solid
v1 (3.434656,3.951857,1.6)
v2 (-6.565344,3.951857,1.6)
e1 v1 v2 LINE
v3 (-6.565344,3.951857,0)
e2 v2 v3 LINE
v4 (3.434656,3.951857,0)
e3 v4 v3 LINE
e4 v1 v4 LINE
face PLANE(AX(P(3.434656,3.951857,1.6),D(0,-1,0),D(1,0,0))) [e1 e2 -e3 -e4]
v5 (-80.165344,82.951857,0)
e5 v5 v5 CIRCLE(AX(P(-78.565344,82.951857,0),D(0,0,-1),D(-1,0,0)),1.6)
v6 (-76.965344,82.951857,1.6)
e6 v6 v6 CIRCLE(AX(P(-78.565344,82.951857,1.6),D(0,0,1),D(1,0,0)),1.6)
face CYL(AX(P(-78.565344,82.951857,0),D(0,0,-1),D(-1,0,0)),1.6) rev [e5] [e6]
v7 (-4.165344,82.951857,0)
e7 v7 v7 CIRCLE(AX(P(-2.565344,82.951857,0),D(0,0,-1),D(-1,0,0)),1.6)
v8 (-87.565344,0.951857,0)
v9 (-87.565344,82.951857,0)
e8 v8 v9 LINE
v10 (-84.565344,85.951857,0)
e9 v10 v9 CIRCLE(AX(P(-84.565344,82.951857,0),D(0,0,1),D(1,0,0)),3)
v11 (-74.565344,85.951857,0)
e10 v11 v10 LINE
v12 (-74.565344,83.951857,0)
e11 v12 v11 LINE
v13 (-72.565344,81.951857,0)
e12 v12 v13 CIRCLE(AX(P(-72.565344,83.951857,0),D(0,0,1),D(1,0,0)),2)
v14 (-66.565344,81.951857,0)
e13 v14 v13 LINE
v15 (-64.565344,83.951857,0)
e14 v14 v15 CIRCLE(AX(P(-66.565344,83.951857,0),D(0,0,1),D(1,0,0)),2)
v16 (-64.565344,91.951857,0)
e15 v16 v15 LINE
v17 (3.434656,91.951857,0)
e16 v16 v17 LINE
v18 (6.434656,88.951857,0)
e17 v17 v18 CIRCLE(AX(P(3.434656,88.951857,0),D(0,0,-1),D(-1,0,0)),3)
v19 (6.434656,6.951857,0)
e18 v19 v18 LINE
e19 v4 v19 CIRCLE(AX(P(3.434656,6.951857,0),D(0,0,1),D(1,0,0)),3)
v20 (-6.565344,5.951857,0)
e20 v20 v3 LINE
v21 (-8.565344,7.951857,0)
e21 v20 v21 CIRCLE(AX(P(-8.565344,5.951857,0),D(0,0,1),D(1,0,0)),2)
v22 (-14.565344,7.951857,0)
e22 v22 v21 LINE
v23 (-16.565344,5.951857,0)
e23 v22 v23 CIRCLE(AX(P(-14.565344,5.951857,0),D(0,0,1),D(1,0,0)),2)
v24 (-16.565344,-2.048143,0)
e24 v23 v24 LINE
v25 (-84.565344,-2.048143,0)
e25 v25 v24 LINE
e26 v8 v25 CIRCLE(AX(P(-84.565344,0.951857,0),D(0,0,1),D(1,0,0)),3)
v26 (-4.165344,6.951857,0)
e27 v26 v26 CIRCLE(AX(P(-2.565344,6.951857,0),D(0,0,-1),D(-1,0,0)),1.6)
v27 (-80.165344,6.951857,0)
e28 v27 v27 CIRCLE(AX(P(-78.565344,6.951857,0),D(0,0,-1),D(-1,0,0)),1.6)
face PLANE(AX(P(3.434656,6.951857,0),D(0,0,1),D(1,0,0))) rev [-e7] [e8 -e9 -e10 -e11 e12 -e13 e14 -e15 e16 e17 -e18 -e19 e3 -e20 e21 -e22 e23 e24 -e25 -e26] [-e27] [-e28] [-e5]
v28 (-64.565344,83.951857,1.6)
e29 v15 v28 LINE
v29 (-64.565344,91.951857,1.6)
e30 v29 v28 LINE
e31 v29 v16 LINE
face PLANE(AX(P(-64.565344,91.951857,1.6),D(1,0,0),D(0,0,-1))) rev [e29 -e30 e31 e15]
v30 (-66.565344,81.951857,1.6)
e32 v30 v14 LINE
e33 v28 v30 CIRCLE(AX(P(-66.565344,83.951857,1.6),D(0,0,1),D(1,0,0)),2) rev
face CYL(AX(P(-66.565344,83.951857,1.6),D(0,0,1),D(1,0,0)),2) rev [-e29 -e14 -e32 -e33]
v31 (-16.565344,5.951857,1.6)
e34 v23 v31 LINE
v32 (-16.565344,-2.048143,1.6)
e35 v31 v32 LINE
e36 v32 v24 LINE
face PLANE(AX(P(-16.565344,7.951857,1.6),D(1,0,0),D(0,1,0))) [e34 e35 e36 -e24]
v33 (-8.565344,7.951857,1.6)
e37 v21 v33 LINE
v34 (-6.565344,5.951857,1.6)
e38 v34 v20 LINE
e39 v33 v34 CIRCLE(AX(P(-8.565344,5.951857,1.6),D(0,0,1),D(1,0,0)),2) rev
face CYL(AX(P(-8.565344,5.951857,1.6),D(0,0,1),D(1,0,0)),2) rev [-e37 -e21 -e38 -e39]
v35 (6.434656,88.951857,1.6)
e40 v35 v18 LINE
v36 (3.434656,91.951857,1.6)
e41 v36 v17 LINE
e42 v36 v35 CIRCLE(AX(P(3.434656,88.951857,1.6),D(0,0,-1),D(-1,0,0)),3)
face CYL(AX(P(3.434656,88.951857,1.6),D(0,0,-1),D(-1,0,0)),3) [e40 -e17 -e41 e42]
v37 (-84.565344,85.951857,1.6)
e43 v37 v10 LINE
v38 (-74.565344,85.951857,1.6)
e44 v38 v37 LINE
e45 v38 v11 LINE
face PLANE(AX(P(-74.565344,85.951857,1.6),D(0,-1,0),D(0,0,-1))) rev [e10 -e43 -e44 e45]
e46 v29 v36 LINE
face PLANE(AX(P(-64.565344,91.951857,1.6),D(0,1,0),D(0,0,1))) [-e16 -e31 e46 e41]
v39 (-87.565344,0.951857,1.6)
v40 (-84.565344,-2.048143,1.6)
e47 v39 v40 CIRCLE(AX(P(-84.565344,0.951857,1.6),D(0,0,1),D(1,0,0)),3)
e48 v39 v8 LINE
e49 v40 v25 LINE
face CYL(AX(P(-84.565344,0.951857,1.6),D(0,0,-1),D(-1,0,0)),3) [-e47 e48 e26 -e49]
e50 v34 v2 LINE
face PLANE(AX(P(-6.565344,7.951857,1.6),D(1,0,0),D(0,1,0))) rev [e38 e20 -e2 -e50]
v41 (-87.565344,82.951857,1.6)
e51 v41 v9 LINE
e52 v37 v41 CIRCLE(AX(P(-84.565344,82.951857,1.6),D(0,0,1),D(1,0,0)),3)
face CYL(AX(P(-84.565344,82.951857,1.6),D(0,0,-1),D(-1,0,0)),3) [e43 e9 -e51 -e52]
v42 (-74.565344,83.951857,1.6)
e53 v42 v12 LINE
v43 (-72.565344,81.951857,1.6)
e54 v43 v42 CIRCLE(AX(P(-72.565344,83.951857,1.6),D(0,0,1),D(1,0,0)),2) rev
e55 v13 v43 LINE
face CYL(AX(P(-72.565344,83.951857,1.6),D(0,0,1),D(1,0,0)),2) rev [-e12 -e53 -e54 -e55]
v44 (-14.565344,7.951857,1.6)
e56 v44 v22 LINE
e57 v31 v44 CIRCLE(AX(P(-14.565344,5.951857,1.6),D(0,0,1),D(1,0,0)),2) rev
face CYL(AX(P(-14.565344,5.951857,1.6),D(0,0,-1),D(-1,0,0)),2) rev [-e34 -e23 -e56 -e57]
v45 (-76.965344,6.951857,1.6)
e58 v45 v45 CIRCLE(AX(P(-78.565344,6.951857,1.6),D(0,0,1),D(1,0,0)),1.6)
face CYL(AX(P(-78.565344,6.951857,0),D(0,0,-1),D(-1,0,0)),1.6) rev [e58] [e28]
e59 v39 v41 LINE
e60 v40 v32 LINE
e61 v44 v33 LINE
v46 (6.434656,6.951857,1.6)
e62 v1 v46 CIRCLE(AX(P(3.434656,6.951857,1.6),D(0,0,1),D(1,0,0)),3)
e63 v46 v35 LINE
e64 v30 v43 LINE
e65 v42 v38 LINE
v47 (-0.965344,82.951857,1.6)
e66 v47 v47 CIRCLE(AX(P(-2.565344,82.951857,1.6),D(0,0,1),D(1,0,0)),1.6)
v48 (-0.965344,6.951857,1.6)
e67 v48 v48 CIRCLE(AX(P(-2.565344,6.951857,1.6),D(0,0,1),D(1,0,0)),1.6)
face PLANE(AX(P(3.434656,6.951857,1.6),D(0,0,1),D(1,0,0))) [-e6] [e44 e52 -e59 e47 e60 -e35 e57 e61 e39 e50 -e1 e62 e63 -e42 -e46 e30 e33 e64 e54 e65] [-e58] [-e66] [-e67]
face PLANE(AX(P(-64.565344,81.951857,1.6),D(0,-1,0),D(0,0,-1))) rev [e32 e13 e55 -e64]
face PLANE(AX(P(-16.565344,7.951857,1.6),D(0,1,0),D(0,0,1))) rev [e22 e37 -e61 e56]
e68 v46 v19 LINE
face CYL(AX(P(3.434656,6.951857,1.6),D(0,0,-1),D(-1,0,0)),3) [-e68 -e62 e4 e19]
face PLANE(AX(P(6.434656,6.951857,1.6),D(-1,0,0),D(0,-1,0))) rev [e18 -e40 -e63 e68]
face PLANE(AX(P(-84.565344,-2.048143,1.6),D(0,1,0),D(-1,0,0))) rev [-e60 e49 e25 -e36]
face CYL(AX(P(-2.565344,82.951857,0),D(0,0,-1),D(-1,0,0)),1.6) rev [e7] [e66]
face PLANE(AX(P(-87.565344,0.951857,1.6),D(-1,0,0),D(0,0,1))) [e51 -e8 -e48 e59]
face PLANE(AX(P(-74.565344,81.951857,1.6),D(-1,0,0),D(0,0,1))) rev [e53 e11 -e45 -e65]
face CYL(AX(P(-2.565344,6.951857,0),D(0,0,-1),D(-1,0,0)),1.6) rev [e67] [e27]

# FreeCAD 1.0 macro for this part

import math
import FreeCAD as App
import Part
import Sketcher

V = App.Vector
Q = App.Units.Quantity


def edges_at(feature, points):
    """Names of the edges that pass closest to the given points."""
    edges = feature.Shape.Edges
    near = lambda p: min(range(len(edges)), key=lambda i: edges[i].distToShape(Part.Vertex(*p))[0])
    return sorted({f"Edge{near(p) + 1}" for p in points})

doc = App.newDocument("Part")
body = doc.addObject("PartDesign::Body", "Body")

sketch1 = doc.addObject("Sketcher::SketchObject", "Sketch")
body.addObject(sketch1)
sketch1.AttachmentSupport = (doc.XY_Plane, [""])
sketch1.MapMode = "FlatFace"
sketch1.addGeometry([
    Part.LineSegment(V(-84.565344, -2.048143, 0), V(-16.565344, -2.048143, 0)),
    Part.LineSegment(V(-16.565344, -2.048143, 0), V(-16.565344, 7.951857, 0)),
    Part.LineSegment(V(-16.565344, 7.951857, 0), V(-6.565344, 7.951857, 0)),
    Part.LineSegment(V(-6.565344, 7.951857, 0), V(-6.565344, 3.951857, 0)),
    Part.LineSegment(V(-6.565344, 3.951857, 0), V(3.434656, 3.951857, 0)),
    Part.ArcOfCircle(Part.Circle(V(3.434656, 6.951857, 0), V(0, 0, 1), 3), math.radians(-90), math.radians(0)),
    Part.LineSegment(V(6.434656, 6.951857, 0), V(6.434656, 88.951857, 0)),
    Part.ArcOfCircle(Part.Circle(V(3.434656, 88.951857, 0), V(0, 0, 1), 3), math.radians(0), math.radians(90)),
    Part.LineSegment(V(3.434656, 91.951857, 0), V(-64.565344, 91.951857, 0)),
    Part.LineSegment(V(-64.565344, 91.951857, 0), V(-64.565344, 81.951857, 0)),
    Part.LineSegment(V(-64.565344, 81.951857, 0), V(-74.565344, 81.951857, 0)),
    Part.LineSegment(V(-74.565344, 81.951857, 0), V(-74.565344, 85.951857, 0)),
    Part.LineSegment(V(-74.565344, 85.951857, 0), V(-84.565344, 85.951857, 0)),
    Part.ArcOfCircle(Part.Circle(V(-84.565344, 82.951857, 0), V(0, 0, 1), 3), math.radians(90), math.radians(180)),
    Part.LineSegment(V(-87.565344, 82.951857, 0), V(-87.565344, 0.951857, 0)),
    Part.ArcOfCircle(Part.Circle(V(-84.565344, 0.951857, 0), V(0, 0, 1), 3), math.radians(180), math.radians(270)),
], False)
sketch1.addConstraint([
    Sketcher.Constraint("Coincident", 0, 2, 1, 1),
    Sketcher.Constraint("Coincident", 1, 2, 2, 1),
    Sketcher.Constraint("Coincident", 2, 2, 3, 1),
    Sketcher.Constraint("Coincident", 3, 2, 4, 1),
    Sketcher.Constraint("Tangent", 4, 2, 5, 1),
    Sketcher.Constraint("Tangent", 5, 2, 6, 1),
    Sketcher.Constraint("Tangent", 6, 2, 7, 1),
    Sketcher.Constraint("Tangent", 7, 2, 8, 1),
    Sketcher.Constraint("Coincident", 8, 2, 9, 1),
    Sketcher.Constraint("Coincident", 9, 2, 10, 1),
    Sketcher.Constraint("Coincident", 10, 2, 11, 1),
    Sketcher.Constraint("Coincident", 11, 2, 12, 1),
    Sketcher.Constraint("Tangent", 12, 2, 13, 1),
    Sketcher.Constraint("Tangent", 13, 2, 14, 1),
    Sketcher.Constraint("Tangent", 14, 2, 15, 1),
    Sketcher.Constraint("Tangent", 15, 2, 0, 1),
    Sketcher.Constraint("Horizontal", 0),
    Sketcher.Constraint("Vertical", 1),
    Sketcher.Constraint("Horizontal", 2),
    Sketcher.Constraint("Vertical", 3),
    Sketcher.Constraint("Horizontal", 4),
    Sketcher.Constraint("Vertical", 6),
    Sketcher.Constraint("Horizontal", 8),
    Sketcher.Constraint("Vertical", 9),
    Sketcher.Constraint("Horizontal", 10),
    Sketcher.Constraint("Vertical", 11),
    Sketcher.Constraint("Horizontal", 12),
    Sketcher.Constraint("Vertical", 14),
    Sketcher.Constraint("Equal", 5, 7),
    Sketcher.Constraint("Equal", 7, 13),
    Sketcher.Constraint("Equal", 13, 15),
    Sketcher.Constraint("Equal", 2, 4),
    Sketcher.Constraint("Equal", 0, 8),
    Sketcher.Constraint("Equal", 4, 10),
    Sketcher.Constraint("Equal", 12, 1),
    Sketcher.Constraint("Equal", 1, 9),
    Sketcher.Constraint("Equal", 3, 11),
    Sketcher.Constraint("Radius", 5, Q("3 mm")),
    Sketcher.Constraint("DistanceX", 0, 1, 0, 2, Q("68 mm")),
    Sketcher.Constraint("DistanceX", 2, 1, 2, 2, Q("10 mm")),
    Sketcher.Constraint("DistanceY", 3, 2, 3, 1, Q("4 mm")),
    Sketcher.Constraint("DistanceY", 6, 1, 6, 2, Q("82 mm")),
    Sketcher.Constraint("DistanceX", -1, 1, 5, 3, Q("3.434656 mm")),
    Sketcher.Constraint("DistanceY", -1, 1, 5, 3, Q("6.951857 mm")),
])
pad1 = doc.addObject("PartDesign::Pad", "Pad")
body.addObject(pad1)
pad1.Profile = sketch1
pad1.Length = 1.6

sketch2 = doc.addObject("Sketcher::SketchObject", "Sketch001")
body.addObject(sketch2)
sketch2.AttachmentSupport = (doc.XY_Plane, [""])
sketch2.MapMode = "FlatFace"
sketch2.addGeometry([
    Part.Circle(V(-78.565344, 6.951857, 0), V(0, 0, 1), 1.6),
    Part.Circle(V(-78.565344, 82.951857, 0), V(0, 0, 1), 1.6),
    Part.Circle(V(-2.565344, 82.951857, 0), V(0, 0, 1), 1.6),
    Part.Circle(V(-2.565344, 6.951857, 0), V(0, 0, 1), 1.6),
], False)
sketch2.addConstraint([
    Sketcher.Constraint("Equal", 0, 1),
    Sketcher.Constraint("Equal", 1, 2),
    Sketcher.Constraint("Equal", 2, 3),
    Sketcher.Constraint("Horizontal", 1, 3, 2, 3),
    Sketcher.Constraint("Horizontal", 0, 3, 3, 3),
    Sketcher.Constraint("Vertical", 0, 3, 1, 3),
    Sketcher.Constraint("Vertical", 2, 3, 3, 3),
    Sketcher.Constraint("Diameter", 0, Q("3.2 mm")),
    Sketcher.Constraint("DistanceY", 0, 3, 1, 3, Q("76 mm")),
    Sketcher.Constraint("DistanceX", 1, 3, 2, 3, Q("76 mm")),
    Sketcher.Constraint("DistanceX", 0, 3, -1, 1, Q("78.565344 mm")),
    Sketcher.Constraint("DistanceY", -1, 1, 0, 3, Q("6.951857 mm")),
])
doc.recompute()
hole = doc.addObject("PartDesign::Hole", "Hole")
body.addObject(hole)
hole.Profile = sketch2
hole.ThreadType = "None"
hole.Diameter = 3.2
hole.DepthType = "ThroughAll"
hole.Reversed = True
doc.recompute()

fillet = doc.addObject("PartDesign::Fillet", "Fillet")
body.addObject(fillet)
fillet.Base = (hole, edges_at(hole, [
    (-16.565, 7.952, 0.8),
    (-74.565, 81.952, 0.8),
    (-64.565, 81.952, 0.8),
    (-6.565, 7.952, 0.8),
]))
fillet.Radius = 2

doc.recompute()
